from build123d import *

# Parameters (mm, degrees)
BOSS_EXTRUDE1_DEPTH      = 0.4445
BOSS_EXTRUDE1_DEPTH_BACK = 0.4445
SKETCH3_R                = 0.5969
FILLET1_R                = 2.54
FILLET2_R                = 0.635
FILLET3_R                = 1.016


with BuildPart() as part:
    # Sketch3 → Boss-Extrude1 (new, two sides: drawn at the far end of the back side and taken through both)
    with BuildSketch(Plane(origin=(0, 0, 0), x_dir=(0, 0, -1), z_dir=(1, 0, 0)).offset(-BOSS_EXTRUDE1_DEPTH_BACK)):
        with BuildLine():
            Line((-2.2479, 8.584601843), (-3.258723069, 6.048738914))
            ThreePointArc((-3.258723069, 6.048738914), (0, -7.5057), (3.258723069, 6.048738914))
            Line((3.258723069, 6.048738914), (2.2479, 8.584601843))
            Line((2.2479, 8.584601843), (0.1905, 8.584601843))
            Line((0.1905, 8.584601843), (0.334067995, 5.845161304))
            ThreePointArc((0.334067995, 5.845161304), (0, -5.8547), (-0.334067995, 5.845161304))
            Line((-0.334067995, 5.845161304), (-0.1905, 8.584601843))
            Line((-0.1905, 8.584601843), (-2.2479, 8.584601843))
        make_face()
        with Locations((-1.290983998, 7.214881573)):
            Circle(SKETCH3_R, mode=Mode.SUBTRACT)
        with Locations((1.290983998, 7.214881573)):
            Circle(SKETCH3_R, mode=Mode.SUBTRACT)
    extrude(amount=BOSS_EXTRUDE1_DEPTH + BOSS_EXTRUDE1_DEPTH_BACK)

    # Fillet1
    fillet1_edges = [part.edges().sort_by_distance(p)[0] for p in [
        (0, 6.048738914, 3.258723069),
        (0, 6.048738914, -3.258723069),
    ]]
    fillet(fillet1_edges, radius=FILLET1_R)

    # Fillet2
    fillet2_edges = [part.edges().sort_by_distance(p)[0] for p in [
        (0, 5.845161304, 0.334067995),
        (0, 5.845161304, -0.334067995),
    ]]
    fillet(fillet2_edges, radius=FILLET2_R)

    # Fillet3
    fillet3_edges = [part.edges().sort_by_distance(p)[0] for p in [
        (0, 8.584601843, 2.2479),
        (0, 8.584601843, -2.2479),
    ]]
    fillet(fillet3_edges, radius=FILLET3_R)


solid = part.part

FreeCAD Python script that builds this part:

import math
import FreeCAD as App
import Part
import Sketcher

V = App.Vector
Q = App.Units.Quantity


def edges_at(feature, points):
    """Names of the edges that pass closest to the given points."""
    edges = feature.Shape.Edges
    near = lambda p: min(range(len(edges)), key=lambda i: edges[i].distToShape(Part.Vertex(*p))[0])
    return sorted({f"Edge{near(p) + 1}" for p in points})

doc = App.newDocument("Part")
body = doc.addObject("PartDesign::Body", "Body")

sketch1 = body.newObject("Sketcher::SketchObject", "Sketch")
sketch1.AttachmentSupport = (doc.getObject("YZ_Plane"), [""])
sketch1.MapMode = "FlatFace"
sketch1.addGeometry([
    Part.LineSegment(V(8.6, 2.2, 0), V(6, 3.3, 0)),
    Part.ArcOfCircle(Part.Circle(V(-0.3, 0, 0), V(0, 0, 1), 7.2), math.radians(27), math.radians(333)),
    Part.LineSegment(V(6, -3.3, 0), V(8.6, -2.2, 0)),
    Part.LineSegment(V(8.6, -2.2, 0), V(8.6, -0.2, 0)),
    Part.LineSegment(V(8.6, -0.2, 0), V(5.8, -0.3, 0)),
    Part.ArcOfCircle(Part.Circle(V(0, 0, 0), V(0, 0, 1), 5.9), math.radians(3), math.radians(357)),
    Part.LineSegment(V(5.8, 0.3, 0), V(8.6, 0.2, 0)),
    Part.LineSegment(V(8.6, 0.2, 0), V(8.6, 2.2, 0)),
    Part.Circle(V(7.2, 1.3, 0), V(0, 0, 1), 0.6),
    Part.Circle(V(7.2, -1.3, 0), V(0, 0, 1), 0.6),
], False)
sketch1.addConstraint([
    Sketcher.Constraint("Coincident", 0, 2, 1, 1),
    Sketcher.Constraint("Coincident", 1, 2, 2, 1),
    Sketcher.Constraint("Coincident", 2, 2, 3, 1),
    Sketcher.Constraint("Coincident", 3, 2, 4, 1),
    Sketcher.Constraint("Coincident", 4, 2, 5, 2),
    Sketcher.Constraint("Coincident", 5, 1, 6, 1),
    Sketcher.Constraint("Coincident", 6, 2, 7, 1),
    Sketcher.Constraint("Coincident", 7, 2, 0, 1),
    Sketcher.Constraint("Vertical", 3),
    Sketcher.Constraint("Vertical", 7),
    Sketcher.Constraint("Coincident", 5, 3, -1, 1),
    Sketcher.Constraint("Equal", 8, 9),
    Sketcher.Constraint("Symmetric", 8, 3, 9, 3, -1),
    Sketcher.Constraint("Symmetric", 0, 2, 1, 2, -1),
    Sketcher.Constraint("Symmetric", 3, 2, 6, 2, -1),
    Sketcher.Constraint("Vertical", 4, 2, 5, 1),
    Sketcher.Constraint("Equal", 3, 7),
    Sketcher.Constraint("Diameter", 8, Q("0.047 in")),
    Sketcher.Constraint("Angle", 4, Q("-177 deg")),
    Sketcher.Constraint("Radius", 5, Q("0.2305 in")),
    Sketcher.Constraint("DistanceY", 3, 1, 3, 2, Q("0.081 in")),
    Sketcher.Constraint("Distance", 4, Q("0.108 in")),
    Sketcher.Constraint("DistanceY", 3, 2, 6, 2, Q("0.015 in")),
    Sketcher.Constraint("Radius", 1, 7.168946),
    Sketcher.Constraint("Distance", 0, 2.729902),
    Sketcher.Constraint("DistanceX", -1, 1, 8, 3, 7.214882),
    Sketcher.Constraint("DistanceX", -1, 1, 0, 2, 6.048739),
    Sketcher.Constraint("DistanceY", 8, 3, 0, 2, 1.967739),
])
pad1 = body.newObject("PartDesign::Pad", "Pad")
pad1.Profile = sketch1
pad1.Type = "TwoLengths"
pad1.Length = Q("0.0175 in")
pad1.Length2 = Q("0.0175 in")
doc.recompute()

fillet = body.newObject("PartDesign::Fillet", "Fillet")
fillet.Base = (pad1, edges_at(pad1, [(0, 6.049, 3.259), (0, 6.049, -3.259)]))
fillet.Radius = Q("0.1 in")
doc.recompute()

fillet2 = body.newObject("PartDesign::Fillet", "Fillet001")
fillet2.Base = (fillet, edges_at(fillet, [(0, 5.845, 0.334), (0, 5.845, -0.334)]))
fillet2.Radius = Q("0.025 in")
doc.recompute()

fillet3 = body.newObject("PartDesign::Fillet", "Fillet002")
fillet3.Base = (fillet2, edges_at(fillet2, [(0, 8.585, 2.248), (0, 8.585, -2.248)]))
fillet3.Radius = Q("0.04 in")

doc.recompute()
